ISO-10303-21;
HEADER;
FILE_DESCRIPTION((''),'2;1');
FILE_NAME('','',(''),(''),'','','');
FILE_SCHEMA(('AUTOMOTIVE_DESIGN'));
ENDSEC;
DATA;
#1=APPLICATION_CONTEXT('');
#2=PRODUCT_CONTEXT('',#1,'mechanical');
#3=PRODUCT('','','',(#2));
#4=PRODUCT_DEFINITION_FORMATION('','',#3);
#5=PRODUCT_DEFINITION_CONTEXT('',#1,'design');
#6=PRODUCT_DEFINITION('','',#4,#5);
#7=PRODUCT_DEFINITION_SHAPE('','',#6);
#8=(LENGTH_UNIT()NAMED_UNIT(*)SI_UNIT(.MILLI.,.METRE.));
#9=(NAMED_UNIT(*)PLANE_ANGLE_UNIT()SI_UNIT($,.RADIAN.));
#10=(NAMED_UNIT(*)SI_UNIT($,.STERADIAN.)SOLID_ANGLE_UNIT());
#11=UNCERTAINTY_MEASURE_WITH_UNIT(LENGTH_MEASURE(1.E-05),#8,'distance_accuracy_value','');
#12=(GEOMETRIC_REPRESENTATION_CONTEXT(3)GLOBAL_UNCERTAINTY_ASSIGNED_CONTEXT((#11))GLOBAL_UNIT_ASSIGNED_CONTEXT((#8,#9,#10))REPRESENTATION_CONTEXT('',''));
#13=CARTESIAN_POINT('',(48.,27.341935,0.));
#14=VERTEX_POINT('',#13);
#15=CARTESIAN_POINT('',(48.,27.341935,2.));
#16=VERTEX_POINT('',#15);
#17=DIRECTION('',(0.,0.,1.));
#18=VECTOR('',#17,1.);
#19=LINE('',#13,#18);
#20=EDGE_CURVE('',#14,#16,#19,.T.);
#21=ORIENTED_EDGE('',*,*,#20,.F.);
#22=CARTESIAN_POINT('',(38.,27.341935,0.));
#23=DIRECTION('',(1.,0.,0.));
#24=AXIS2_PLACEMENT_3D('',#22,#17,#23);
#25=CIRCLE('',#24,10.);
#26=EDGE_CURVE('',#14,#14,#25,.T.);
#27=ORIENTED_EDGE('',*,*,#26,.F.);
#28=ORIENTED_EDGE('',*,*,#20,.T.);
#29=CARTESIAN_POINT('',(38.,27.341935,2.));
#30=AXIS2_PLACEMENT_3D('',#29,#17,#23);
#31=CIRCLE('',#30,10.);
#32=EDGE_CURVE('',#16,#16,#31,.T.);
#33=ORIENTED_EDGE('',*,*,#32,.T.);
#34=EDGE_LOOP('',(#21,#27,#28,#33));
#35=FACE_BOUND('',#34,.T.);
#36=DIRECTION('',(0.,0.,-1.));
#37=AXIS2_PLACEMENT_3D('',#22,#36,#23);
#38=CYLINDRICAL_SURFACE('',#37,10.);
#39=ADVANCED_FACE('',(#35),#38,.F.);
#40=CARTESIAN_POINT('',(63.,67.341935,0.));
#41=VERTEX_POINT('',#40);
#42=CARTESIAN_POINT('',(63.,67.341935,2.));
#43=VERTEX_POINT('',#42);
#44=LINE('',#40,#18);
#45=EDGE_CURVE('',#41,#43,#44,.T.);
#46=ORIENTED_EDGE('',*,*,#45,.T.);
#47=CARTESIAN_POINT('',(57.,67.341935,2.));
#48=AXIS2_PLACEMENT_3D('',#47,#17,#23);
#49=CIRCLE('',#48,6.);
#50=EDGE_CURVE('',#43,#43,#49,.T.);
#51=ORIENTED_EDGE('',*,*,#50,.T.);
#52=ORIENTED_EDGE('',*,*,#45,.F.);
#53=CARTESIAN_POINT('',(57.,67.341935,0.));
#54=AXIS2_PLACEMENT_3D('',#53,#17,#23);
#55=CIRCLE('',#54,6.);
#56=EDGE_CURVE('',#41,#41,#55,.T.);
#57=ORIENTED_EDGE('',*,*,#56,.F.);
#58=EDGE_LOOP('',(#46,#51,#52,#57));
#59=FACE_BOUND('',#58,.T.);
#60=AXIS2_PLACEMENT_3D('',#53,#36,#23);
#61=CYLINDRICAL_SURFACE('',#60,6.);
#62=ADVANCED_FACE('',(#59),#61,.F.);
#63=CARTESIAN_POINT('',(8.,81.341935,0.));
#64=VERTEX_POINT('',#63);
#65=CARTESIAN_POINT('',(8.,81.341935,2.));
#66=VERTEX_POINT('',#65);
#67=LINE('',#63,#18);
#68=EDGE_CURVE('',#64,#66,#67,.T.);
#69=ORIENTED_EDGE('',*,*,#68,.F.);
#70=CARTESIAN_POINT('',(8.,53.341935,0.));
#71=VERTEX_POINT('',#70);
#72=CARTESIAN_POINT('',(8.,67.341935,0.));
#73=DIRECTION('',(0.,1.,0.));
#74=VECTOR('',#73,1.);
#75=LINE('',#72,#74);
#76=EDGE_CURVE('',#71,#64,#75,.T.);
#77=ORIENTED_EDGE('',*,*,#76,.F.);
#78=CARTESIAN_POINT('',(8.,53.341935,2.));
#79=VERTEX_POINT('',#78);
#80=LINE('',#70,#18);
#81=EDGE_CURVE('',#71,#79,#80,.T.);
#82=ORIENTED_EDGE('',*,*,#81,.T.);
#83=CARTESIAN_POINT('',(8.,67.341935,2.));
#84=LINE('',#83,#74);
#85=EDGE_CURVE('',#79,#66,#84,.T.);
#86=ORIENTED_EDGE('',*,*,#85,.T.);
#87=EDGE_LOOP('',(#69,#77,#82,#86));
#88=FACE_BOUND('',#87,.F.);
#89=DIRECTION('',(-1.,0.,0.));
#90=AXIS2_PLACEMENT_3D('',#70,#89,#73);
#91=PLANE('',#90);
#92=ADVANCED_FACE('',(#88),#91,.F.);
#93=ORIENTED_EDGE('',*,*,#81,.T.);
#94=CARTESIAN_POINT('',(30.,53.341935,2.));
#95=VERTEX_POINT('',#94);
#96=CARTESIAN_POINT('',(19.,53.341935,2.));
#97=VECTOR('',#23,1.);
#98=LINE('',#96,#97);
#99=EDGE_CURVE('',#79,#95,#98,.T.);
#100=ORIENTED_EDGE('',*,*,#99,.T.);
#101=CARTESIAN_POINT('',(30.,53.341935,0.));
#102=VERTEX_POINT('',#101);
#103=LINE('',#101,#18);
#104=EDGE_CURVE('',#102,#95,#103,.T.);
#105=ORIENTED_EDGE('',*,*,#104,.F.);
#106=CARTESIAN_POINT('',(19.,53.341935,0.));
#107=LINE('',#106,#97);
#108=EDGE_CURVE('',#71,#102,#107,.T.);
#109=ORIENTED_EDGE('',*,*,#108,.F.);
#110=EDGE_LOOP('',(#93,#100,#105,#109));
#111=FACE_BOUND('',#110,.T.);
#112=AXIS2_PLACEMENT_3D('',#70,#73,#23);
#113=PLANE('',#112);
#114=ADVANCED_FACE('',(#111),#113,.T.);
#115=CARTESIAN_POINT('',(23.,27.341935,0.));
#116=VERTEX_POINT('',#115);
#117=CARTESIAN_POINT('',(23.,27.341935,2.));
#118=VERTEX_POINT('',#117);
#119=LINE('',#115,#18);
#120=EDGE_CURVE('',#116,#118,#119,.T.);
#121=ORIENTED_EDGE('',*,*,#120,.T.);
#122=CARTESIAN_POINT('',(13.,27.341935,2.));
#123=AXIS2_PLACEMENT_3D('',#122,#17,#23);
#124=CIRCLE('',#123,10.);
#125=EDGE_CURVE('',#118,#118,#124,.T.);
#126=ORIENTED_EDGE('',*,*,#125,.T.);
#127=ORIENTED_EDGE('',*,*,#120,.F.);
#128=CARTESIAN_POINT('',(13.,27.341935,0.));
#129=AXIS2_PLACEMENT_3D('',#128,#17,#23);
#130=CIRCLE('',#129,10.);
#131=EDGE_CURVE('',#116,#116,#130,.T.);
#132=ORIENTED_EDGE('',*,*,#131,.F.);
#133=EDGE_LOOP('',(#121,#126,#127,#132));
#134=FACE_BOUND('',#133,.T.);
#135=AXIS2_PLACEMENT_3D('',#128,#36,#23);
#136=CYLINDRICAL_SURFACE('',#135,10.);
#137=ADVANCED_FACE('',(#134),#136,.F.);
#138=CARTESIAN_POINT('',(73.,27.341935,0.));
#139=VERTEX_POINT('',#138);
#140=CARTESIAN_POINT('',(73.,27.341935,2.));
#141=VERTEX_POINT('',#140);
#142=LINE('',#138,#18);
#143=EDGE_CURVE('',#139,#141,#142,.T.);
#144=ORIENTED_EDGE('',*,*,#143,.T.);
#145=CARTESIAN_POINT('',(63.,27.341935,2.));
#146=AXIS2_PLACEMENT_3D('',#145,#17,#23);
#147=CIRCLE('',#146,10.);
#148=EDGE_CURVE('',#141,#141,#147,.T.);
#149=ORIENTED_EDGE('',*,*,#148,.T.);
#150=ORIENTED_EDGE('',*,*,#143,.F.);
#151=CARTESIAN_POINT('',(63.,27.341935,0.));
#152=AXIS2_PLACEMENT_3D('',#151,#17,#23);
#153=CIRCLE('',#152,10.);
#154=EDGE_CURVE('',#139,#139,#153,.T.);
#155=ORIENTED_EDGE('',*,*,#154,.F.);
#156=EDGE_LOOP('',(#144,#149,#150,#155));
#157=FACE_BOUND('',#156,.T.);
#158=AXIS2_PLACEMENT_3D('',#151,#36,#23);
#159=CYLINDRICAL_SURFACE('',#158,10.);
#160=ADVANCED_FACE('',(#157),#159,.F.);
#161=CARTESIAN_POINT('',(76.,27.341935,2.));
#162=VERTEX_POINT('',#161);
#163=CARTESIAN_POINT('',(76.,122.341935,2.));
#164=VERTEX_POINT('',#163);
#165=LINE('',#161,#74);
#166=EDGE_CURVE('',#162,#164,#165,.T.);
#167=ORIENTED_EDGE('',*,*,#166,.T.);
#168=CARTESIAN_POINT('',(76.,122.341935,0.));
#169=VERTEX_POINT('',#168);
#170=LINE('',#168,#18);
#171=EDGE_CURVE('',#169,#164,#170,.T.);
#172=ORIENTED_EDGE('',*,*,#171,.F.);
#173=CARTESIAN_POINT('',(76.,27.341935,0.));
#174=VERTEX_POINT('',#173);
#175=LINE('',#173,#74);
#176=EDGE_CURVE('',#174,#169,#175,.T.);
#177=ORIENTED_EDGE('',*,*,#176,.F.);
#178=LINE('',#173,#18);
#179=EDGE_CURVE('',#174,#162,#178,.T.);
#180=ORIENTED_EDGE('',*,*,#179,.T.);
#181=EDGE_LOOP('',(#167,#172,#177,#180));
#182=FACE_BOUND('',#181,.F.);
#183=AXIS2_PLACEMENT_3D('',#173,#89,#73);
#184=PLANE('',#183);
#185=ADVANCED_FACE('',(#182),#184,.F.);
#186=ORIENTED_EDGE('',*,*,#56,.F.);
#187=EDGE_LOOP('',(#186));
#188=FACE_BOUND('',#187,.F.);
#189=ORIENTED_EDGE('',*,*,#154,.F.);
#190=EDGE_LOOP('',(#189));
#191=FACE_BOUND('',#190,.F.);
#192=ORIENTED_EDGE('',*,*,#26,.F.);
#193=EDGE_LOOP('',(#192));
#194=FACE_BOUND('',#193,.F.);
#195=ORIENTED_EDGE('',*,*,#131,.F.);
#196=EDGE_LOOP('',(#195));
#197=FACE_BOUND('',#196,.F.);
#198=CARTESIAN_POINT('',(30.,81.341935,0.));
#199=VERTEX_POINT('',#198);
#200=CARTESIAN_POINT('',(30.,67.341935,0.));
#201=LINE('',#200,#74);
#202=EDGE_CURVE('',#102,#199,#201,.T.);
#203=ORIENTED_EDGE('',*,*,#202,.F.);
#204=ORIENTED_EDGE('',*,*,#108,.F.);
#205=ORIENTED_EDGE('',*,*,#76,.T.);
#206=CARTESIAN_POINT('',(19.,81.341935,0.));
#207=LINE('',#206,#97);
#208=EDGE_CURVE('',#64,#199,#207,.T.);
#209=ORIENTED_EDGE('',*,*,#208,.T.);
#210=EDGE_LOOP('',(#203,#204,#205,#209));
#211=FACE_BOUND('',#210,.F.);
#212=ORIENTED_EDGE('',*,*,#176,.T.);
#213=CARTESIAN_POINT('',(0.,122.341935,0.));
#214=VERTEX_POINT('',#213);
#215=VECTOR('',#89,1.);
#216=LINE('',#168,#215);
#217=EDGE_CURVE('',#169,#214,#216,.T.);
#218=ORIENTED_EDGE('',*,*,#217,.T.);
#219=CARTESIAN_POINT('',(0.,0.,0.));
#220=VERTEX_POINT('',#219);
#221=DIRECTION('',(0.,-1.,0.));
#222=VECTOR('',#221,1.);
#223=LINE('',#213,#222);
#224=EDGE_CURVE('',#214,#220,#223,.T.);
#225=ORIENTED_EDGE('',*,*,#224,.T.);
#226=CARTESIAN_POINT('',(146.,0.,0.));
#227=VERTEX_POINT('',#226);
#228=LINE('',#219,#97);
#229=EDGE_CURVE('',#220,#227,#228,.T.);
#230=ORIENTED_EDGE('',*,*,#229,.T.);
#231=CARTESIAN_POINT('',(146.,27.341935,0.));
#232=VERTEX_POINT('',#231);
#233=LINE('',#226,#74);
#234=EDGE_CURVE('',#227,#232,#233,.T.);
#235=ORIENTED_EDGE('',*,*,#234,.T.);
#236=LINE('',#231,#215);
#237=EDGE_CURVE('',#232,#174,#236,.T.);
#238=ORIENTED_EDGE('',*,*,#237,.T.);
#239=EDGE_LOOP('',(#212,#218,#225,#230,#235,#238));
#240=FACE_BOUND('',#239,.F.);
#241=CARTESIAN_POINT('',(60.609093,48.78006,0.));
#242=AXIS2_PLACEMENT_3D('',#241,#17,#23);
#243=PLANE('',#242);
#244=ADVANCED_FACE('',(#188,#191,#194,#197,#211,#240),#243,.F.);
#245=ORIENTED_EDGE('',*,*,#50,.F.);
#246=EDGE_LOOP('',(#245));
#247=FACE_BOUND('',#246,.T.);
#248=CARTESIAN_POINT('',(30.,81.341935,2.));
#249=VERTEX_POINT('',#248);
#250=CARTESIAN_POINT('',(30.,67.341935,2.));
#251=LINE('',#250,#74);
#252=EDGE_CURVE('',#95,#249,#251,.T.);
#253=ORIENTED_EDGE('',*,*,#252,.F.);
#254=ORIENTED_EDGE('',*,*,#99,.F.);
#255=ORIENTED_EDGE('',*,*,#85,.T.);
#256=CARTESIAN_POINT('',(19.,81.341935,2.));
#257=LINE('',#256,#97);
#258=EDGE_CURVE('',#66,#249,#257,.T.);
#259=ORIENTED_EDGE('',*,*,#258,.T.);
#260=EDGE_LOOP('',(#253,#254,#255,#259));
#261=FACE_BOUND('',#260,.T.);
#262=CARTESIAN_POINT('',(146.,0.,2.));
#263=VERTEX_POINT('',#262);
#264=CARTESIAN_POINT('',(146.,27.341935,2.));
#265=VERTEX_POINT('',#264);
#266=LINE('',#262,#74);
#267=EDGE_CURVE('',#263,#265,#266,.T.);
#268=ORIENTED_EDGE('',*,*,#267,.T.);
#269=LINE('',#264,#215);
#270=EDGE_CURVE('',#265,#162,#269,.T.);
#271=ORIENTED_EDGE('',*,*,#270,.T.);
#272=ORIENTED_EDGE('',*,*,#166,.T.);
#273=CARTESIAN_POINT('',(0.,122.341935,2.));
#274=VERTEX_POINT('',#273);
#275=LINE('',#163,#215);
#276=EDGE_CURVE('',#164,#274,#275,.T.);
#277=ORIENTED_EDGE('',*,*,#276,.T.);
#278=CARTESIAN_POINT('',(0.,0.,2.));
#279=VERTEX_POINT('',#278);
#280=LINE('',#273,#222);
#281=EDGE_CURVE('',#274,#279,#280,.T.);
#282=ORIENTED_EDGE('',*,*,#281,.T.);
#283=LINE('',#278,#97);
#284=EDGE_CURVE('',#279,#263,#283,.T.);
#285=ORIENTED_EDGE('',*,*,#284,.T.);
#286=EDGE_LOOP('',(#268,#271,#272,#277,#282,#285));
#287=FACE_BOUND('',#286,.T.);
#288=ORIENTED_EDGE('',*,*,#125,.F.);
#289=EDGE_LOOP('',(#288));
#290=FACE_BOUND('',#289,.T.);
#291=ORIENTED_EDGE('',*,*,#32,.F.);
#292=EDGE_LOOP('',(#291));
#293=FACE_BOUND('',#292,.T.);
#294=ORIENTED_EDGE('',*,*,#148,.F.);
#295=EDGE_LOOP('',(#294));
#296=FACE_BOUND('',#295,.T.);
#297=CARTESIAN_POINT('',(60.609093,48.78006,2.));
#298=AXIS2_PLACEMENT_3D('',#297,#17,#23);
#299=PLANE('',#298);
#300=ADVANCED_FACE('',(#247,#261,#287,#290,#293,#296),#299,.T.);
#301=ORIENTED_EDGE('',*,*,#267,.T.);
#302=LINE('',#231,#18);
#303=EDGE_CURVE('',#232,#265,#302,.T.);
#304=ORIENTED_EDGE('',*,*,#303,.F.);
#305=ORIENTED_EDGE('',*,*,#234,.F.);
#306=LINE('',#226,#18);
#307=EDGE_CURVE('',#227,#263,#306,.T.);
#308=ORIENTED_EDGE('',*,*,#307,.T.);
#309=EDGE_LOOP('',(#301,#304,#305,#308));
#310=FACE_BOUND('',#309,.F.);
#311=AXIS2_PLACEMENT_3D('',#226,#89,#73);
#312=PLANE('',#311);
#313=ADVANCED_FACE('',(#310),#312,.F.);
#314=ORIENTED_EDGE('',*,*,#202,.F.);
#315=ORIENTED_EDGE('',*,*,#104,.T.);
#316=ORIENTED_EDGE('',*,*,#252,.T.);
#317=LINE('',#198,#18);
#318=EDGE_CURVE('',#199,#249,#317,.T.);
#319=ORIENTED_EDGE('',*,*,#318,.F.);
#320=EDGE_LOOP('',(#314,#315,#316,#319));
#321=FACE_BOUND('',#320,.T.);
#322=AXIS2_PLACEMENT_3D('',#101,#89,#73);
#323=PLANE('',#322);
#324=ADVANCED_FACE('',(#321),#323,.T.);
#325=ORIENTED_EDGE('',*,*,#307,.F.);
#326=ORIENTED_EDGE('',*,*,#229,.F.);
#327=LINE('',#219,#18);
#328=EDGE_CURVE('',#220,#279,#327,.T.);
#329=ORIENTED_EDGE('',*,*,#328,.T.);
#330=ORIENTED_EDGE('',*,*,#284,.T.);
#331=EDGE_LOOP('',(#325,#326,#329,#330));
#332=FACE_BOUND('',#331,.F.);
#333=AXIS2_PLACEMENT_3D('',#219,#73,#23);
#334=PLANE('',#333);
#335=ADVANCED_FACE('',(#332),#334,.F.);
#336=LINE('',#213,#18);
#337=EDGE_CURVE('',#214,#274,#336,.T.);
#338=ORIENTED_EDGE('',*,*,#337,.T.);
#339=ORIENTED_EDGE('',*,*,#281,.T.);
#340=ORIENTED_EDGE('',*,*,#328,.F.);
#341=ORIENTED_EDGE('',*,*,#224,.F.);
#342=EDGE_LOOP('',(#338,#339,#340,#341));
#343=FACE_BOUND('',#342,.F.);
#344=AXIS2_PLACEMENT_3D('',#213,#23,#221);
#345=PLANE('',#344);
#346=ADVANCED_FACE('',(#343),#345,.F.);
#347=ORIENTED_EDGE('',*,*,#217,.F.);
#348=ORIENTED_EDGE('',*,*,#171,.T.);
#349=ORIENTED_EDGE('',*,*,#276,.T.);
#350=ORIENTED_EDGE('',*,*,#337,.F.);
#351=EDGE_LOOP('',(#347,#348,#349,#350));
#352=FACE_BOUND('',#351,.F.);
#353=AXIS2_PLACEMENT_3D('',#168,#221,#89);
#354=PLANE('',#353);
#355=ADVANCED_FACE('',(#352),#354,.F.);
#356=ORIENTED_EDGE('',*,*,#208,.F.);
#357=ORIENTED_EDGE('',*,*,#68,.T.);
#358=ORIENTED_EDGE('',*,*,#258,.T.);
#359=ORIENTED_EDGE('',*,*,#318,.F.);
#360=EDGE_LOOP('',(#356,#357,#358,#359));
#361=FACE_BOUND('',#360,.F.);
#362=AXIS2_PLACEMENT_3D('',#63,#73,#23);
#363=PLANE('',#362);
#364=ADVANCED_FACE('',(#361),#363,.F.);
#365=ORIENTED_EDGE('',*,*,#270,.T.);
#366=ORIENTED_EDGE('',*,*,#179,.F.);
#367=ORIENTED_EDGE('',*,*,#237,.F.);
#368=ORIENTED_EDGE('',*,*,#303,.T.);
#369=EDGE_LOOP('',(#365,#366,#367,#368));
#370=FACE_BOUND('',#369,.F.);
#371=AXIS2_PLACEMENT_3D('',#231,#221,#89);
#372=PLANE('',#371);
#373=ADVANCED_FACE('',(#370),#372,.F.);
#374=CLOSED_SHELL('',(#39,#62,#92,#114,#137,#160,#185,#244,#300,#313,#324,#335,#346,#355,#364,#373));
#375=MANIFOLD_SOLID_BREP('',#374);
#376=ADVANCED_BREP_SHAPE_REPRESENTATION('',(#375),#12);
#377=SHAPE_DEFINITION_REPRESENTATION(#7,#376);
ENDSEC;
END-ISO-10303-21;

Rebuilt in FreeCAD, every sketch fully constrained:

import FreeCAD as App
import Part
import Sketcher
Q = App.Units.Quantity


def add_polygon(sketch, points):
    """Adds a closed chain of lines whose ends are joined by coincident constraints."""
    first, n = sketch.GeometryCount, len(points)
    for a, b in zip(points, points[1:] + points[:1]):
        sketch.addGeometry(Part.LineSegment(App.Vector(*a, 0), App.Vector(*b, 0)), False)
    for i in range(n):
        sketch.addConstraint(Sketcher.Constraint("Coincident", first + i, 2, first + (i + 1) % n, 1))

doc = App.newDocument("Part")
params = doc.addObject("Spreadsheet::Sheet", "Params")
for row, (alias, value) in enumerate([
    ("sketch1_diameter", "20 mm"),
    ("sketch1_diameter2", "12 mm"),
    ("sketch1_width", "146 mm"),
    ("sketch1_width2", "70 mm"),
    ("sketch1_width3", "22 mm"),
    ("pad1_length", "2 mm"),
], start=1):
    params.set(f"A{row}", alias)
    params.set(f"B{row}", "=" + value)
    params.setAlias(f"B{row}", alias)

body = doc.addObject("PartDesign::Body", "Body")

# Sketch on XY plane
sketch1 = body.newObject("Sketcher::SketchObject", "Sketch")
sketch1.AttachmentSupport = (doc.getObject("XY_Plane"), [""])
sketch1.MapMode = "FlatFace"
add_polygon(sketch1, [(0, 0), (146, 0), (146, 27.341935), (76, 27.341935), (76, 122.341935), (0, 122.341935)])  # lines 0-5
sketch1.addGeometry(Part.Circle(App.Vector(13, 27.341935, 0), App.Vector(0, 0, 1), 10), False)  # 6
sketch1.addGeometry(Part.Circle(App.Vector(38, 27.341935, 0), App.Vector(0, 0, 1), 10), False)  # 7
sketch1.addGeometry(Part.Circle(App.Vector(63, 27.341935, 0), App.Vector(0, 0, 1), 10), False)  # 8
add_polygon(sketch1, [(30, 53.341935), (8, 53.341935), (8, 81.341935), (30, 81.341935)])  # lines 9-12
sketch1.addGeometry(Part.Circle(App.Vector(57, 67.341935, 0), App.Vector(0, 0, 1), 6), False)  # 13
sketch1.addConstraint([
    Sketcher.Constraint("Horizontal", 0),
    Sketcher.Constraint("Vertical", 1),
    Sketcher.Constraint("Horizontal", 2),
    Sketcher.Constraint("Vertical", 3),
    Sketcher.Constraint("Horizontal", 4),
    Sketcher.Constraint("Vertical", 5),
    Sketcher.Constraint("Horizontal", 9),
    Sketcher.Constraint("Vertical", 10),
    Sketcher.Constraint("Horizontal", 11),
    Sketcher.Constraint("Vertical", 12),
    Sketcher.Constraint("Coincident", 5, 2, -1, 1),
    Sketcher.Constraint("Equal", 6, 7),
    Sketcher.Constraint("Equal", 7, 8),
    Sketcher.Constraint("Horizontal", 6, 3, 7, 3),
    Sketcher.Constraint("Horizontal", 7, 3, 8, 3),
    Sketcher.Constraint("Horizontal", 8, 3, 1, 2),
    Sketcher.Constraint("Diameter", 6, Q("20 mm")),
    Sketcher.Constraint("Diameter", 13, Q("12 mm")),
    Sketcher.Constraint("DistanceX", 0, 1, 0, 2, Q("146 mm")),
    Sketcher.Constraint("DistanceX", 2, 2, 2, 1, Q("70 mm")),
    Sketcher.Constraint("DistanceX", 9, 2, 9, 1, Q("22 mm")),
    Sketcher.Constraint("DistanceY", 3, 1, 3, 2, Q("95 mm")),
    Sketcher.Constraint("DistanceY", 10, 1, 10, 2, Q("28 mm")),
    Sketcher.Constraint("DistanceX", -1, 1, 6, 3, Q("13 mm")),
    Sketcher.Constraint("DistanceX", -1, 1, 7, 3, Q("38 mm")),
    Sketcher.Constraint("DistanceX", -1, 1, 8, 3, Q("63 mm")),
    Sketcher.Constraint("DistanceX", -1, 1, 13, 3, Q("57 mm")),
    Sketcher.Constraint("DistanceX", -1, 1, 9, 2, Q("8 mm")),
    Sketcher.Constraint("DistanceY", 8, 3, 13, 3, Q("40 mm")),
    Sketcher.Constraint("DistanceY", 6, 3, 9, 2, Q("26 mm")),
    Sketcher.Constraint("DistanceY", 1, 1, 1, 2, Q("27.341935 mm")),
])
sketch1.setExpression("Constraints[26]", "Params.sketch1_diameter")
sketch1.setExpression("Constraints[27]", "Params.sketch1_diameter2")
sketch1.setExpression("Constraints[28]", "Params.sketch1_width")
sketch1.setExpression("Constraints[29]", "Params.sketch1_width2")
sketch1.setExpression("Constraints[30]", "Params.sketch1_width3")
pad1 = body.newObject("PartDesign::Pad", "Pad")
pad1.Profile = sketch1
pad1.setExpression("Length", "Params.pad1_length")

doc.recompute()
